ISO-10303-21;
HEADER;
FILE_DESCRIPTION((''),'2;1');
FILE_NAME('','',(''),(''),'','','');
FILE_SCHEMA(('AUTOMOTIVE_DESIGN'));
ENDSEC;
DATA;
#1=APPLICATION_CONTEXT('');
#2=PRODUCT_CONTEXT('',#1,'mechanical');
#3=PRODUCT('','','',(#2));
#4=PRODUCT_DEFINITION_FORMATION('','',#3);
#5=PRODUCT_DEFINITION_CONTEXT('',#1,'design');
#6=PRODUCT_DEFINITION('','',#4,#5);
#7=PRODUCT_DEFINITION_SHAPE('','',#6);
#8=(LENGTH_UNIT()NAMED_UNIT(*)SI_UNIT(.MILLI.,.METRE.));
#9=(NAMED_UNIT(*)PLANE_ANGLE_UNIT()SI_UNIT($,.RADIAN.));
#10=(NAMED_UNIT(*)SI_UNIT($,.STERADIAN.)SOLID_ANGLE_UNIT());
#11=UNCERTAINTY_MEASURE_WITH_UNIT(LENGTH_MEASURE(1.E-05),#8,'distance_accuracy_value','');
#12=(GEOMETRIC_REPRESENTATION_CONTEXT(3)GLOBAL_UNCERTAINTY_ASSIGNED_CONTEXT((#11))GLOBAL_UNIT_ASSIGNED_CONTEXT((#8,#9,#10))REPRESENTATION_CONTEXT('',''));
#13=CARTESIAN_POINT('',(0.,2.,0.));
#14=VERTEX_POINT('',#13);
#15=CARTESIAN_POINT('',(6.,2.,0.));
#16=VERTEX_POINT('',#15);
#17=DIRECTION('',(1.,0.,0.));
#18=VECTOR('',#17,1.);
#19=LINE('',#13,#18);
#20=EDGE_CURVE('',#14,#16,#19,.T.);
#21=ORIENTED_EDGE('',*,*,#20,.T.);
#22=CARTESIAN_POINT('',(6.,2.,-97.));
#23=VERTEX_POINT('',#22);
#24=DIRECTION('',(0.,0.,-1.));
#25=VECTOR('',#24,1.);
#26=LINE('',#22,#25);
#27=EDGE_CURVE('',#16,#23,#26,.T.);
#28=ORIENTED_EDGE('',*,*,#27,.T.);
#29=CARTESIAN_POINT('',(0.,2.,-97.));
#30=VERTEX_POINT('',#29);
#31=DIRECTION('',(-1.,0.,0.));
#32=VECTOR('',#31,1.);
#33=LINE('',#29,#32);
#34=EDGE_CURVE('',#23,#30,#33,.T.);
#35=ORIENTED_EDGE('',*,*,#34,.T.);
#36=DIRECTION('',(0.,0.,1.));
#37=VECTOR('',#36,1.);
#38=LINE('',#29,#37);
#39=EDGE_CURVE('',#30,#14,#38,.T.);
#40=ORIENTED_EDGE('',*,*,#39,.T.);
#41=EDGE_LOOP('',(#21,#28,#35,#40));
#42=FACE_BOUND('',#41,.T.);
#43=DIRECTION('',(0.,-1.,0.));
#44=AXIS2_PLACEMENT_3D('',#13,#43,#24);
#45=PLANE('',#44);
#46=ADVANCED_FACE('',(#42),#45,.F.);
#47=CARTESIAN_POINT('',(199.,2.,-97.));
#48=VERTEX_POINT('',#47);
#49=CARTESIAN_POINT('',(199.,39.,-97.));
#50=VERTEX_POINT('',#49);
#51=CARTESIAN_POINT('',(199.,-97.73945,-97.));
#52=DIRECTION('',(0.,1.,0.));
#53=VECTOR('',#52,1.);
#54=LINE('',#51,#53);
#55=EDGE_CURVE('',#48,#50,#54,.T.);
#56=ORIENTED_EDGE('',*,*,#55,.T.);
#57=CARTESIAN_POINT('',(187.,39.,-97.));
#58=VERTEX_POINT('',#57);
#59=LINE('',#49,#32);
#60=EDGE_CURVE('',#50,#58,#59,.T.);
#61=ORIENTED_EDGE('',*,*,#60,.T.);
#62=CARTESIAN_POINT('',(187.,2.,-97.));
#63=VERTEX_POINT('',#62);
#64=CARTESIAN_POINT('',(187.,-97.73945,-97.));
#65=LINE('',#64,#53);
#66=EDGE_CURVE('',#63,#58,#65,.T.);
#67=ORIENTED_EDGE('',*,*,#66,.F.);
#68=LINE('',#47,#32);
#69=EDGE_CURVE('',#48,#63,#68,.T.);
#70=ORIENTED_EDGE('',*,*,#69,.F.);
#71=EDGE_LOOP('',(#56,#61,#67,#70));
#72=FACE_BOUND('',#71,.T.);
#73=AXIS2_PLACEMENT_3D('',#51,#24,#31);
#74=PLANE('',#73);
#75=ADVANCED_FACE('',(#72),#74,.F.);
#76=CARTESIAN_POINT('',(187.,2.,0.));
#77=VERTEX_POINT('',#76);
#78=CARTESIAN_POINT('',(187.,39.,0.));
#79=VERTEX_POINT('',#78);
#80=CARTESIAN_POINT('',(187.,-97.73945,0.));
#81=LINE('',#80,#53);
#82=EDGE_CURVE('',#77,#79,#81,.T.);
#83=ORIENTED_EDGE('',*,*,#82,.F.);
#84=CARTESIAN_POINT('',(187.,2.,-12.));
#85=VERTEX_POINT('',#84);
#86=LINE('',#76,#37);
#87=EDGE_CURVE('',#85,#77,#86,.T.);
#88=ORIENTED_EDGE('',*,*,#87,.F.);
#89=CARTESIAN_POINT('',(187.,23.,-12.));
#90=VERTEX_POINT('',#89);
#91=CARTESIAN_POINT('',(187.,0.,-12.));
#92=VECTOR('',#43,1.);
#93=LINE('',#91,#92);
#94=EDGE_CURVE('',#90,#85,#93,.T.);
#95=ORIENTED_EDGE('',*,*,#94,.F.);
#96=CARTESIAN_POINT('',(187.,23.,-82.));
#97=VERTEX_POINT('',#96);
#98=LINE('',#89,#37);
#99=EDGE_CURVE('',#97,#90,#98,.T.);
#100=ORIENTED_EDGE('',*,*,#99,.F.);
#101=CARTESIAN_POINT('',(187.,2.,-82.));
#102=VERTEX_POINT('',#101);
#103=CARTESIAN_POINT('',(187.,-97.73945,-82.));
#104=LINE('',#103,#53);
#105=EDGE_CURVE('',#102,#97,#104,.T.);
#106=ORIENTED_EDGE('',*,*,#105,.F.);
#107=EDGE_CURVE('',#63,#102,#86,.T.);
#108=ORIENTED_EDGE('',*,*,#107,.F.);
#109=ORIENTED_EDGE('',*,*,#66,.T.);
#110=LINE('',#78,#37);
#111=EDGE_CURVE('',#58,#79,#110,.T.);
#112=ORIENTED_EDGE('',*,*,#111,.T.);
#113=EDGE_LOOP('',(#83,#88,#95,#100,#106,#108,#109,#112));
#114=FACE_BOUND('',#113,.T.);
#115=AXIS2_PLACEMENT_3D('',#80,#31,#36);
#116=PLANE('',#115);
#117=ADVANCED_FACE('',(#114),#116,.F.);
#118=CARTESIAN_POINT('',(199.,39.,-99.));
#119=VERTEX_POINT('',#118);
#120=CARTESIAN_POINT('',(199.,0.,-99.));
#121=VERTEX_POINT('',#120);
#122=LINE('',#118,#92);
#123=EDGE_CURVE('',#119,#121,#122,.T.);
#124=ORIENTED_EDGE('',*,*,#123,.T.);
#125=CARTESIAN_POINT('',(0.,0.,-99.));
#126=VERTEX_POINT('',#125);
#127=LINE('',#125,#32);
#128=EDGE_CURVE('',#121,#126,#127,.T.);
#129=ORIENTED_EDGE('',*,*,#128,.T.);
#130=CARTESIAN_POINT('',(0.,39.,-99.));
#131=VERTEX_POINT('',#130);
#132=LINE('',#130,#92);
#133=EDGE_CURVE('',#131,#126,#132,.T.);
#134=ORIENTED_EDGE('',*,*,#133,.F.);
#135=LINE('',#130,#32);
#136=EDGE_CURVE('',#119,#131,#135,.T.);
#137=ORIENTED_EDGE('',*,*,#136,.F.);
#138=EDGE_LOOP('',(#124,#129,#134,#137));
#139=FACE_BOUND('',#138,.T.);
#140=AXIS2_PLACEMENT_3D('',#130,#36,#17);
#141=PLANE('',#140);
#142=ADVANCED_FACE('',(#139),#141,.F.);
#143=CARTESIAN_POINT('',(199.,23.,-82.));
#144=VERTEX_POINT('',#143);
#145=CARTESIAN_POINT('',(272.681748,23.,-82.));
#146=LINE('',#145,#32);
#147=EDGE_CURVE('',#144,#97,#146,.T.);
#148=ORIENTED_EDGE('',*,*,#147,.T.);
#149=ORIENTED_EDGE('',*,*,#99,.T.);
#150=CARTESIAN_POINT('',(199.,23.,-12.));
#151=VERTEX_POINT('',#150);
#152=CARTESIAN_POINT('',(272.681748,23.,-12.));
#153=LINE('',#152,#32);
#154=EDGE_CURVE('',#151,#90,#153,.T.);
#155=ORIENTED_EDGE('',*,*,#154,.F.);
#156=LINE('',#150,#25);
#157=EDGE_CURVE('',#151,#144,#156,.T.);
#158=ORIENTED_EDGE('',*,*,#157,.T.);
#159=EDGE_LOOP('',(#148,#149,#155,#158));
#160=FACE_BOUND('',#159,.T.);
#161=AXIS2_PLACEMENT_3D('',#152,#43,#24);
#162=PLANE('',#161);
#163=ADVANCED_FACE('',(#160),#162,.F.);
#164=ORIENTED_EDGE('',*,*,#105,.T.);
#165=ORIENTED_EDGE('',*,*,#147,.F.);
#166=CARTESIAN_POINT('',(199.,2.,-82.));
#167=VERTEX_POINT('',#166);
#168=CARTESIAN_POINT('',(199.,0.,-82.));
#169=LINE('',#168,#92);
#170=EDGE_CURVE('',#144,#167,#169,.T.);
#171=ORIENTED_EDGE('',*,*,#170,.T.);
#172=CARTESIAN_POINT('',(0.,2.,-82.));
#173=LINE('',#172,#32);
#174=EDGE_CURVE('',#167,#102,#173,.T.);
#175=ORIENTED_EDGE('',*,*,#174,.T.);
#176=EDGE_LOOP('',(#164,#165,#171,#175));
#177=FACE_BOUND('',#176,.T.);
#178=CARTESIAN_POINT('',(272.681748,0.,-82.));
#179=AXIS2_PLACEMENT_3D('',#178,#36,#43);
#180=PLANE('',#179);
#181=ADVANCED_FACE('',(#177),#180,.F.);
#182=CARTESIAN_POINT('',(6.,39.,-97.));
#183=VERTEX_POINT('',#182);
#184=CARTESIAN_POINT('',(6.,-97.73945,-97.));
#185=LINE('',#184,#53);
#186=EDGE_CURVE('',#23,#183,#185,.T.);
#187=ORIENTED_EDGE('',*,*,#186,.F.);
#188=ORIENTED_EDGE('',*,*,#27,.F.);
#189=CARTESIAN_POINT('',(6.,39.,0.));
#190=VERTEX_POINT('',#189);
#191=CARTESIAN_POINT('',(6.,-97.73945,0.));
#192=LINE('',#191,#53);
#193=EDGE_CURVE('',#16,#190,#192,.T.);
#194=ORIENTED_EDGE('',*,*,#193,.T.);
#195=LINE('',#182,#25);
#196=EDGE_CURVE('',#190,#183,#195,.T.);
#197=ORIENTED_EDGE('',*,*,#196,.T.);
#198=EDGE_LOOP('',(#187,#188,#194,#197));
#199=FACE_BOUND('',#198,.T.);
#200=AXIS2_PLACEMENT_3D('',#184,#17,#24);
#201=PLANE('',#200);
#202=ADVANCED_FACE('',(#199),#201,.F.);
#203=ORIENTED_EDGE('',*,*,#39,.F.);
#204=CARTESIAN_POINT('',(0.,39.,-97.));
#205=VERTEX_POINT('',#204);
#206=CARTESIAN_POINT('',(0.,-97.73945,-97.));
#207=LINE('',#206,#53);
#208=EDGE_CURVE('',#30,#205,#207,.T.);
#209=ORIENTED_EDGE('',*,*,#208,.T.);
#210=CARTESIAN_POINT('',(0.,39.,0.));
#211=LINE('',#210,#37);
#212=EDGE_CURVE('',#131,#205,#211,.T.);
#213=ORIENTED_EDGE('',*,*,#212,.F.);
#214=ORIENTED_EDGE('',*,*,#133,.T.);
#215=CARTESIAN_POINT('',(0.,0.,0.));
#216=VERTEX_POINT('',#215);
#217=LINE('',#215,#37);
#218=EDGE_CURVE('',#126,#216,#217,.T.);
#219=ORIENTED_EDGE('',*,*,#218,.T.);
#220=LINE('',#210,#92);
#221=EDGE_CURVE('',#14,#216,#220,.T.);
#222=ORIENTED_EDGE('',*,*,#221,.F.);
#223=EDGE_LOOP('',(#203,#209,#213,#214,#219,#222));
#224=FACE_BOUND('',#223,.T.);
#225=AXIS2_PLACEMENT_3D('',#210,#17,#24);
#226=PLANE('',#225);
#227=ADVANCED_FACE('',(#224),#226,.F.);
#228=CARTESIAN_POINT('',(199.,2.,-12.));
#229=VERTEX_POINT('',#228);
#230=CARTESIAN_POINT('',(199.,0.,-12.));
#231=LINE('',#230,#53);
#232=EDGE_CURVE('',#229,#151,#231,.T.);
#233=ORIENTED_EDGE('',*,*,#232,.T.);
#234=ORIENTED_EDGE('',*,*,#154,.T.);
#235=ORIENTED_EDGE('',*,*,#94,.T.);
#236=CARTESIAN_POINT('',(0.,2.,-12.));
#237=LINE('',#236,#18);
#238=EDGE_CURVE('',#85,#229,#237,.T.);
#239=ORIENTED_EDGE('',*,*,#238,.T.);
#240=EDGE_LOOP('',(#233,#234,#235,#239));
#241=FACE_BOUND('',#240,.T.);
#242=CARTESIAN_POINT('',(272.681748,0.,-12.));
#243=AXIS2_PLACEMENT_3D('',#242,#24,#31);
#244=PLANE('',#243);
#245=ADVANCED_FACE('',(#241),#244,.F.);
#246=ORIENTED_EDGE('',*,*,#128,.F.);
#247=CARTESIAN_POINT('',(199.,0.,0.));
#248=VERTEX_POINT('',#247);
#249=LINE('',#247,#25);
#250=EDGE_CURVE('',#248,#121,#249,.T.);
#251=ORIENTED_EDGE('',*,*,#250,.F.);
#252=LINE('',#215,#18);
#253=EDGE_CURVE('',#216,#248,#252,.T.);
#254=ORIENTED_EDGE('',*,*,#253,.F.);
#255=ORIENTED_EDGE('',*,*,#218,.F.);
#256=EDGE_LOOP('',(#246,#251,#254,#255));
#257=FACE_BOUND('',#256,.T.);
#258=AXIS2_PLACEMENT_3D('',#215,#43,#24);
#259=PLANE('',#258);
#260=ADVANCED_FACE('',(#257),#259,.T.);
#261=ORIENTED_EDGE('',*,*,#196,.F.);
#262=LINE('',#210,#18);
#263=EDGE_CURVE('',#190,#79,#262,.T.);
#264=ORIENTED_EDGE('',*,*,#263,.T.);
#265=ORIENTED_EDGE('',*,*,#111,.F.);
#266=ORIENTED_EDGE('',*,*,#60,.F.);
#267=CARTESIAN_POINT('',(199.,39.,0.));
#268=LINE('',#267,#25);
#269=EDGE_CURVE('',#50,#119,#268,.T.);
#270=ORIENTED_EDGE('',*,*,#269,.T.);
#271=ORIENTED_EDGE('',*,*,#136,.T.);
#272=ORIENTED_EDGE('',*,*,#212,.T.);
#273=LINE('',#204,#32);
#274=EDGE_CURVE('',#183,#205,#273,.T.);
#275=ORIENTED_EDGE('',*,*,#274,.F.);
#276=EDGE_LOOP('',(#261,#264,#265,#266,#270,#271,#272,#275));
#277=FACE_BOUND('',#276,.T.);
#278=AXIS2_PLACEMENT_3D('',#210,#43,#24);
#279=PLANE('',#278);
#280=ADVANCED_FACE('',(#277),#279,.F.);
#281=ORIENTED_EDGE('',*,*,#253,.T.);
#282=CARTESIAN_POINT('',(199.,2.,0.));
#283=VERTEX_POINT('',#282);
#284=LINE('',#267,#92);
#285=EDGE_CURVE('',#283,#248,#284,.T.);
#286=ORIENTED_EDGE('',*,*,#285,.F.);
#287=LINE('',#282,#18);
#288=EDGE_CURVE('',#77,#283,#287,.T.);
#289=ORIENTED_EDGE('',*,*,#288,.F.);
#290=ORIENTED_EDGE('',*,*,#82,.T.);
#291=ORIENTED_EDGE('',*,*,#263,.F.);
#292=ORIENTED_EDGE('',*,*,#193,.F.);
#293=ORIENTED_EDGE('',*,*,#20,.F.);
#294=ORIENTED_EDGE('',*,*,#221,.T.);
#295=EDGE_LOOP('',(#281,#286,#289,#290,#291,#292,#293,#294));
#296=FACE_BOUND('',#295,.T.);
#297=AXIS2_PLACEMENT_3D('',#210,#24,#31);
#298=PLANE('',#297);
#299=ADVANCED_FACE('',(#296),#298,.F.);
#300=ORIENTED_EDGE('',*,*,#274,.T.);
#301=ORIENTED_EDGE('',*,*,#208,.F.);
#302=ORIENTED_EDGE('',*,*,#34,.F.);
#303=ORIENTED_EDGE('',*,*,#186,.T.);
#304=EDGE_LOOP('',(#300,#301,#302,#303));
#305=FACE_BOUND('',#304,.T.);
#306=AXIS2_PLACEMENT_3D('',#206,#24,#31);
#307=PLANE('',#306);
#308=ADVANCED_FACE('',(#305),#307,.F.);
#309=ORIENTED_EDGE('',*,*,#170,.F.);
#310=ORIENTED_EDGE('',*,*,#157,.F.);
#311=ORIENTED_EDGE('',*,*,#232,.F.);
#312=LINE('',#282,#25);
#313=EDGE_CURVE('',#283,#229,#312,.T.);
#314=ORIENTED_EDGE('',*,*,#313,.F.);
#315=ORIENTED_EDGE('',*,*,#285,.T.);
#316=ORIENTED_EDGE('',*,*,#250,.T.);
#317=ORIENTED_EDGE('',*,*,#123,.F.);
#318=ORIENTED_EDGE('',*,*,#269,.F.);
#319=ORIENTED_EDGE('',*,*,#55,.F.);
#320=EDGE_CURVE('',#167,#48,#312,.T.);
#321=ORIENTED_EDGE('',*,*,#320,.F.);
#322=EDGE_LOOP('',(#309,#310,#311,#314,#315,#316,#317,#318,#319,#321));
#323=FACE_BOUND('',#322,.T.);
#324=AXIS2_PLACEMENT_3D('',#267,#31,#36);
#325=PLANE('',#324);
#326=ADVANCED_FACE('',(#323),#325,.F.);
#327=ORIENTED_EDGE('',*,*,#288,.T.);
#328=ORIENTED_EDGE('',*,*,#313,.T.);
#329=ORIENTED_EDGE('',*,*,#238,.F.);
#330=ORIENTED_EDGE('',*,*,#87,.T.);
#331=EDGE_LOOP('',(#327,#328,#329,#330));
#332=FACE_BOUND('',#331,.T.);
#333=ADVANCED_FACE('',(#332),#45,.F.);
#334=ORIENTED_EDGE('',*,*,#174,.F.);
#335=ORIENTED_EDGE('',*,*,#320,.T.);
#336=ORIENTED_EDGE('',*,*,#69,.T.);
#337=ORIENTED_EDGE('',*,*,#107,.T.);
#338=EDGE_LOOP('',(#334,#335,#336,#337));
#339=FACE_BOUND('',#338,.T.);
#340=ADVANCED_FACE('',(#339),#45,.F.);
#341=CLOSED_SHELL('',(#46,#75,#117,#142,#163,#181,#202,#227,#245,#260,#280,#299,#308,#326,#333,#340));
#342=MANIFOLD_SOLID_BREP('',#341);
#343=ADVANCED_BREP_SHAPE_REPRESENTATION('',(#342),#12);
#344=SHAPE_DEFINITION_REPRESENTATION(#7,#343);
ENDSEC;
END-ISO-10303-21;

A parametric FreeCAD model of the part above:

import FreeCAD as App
import Part
import Sketcher
from FreeCAD import Vector


def add_polygon(sketch, points):
    """Adds a closed chain of lines whose ends are joined by coincident constraints."""
    first, n = sketch.GeometryCount, len(points)
    for a, b in zip(points, points[1:] + points[:1]):
        sketch.addGeometry(Part.LineSegment(App.Vector(*a, 0), App.Vector(*b, 0)), False)
    for i in range(n):
        sketch.addConstraint(Sketcher.Constraint("Coincident", first + i, 2, first + (i + 1) % n, 1))

doc = App.newDocument("Part")
body = doc.addObject("PartDesign::Body", "Body")

# Sketch on XZ plane
sketch1 = body.newObject("Sketcher::SketchObject", "Sketch")
sketch1.AttachmentSupport = (doc.getObject("XZ_Plane"), [""])
sketch1.MapMode = "FlatFace"
add_polygon(sketch1, [(0, -99), (0, 0), (199, 0), (199, -99)])  # lines 0-3
sketch1.addConstraint(Sketcher.Constraint("Vertical", 0))
sketch1.addConstraint(Sketcher.Constraint("Horizontal", 1))
sketch1.addConstraint(Sketcher.Constraint("Vertical", 2))
sketch1.addConstraint(Sketcher.Constraint("Horizontal", 3))
sketch1.addConstraint(Sketcher.Constraint("Coincident", 0, 2, -1, 1))
sketch1.addConstraint(Sketcher.Constraint("DistanceX", 1, 1, 1, 2, 199.0))
sketch1.addConstraint(Sketcher.Constraint("DistanceY", 0, 1, 0, 2, 99.0))
pad1 = body.newObject("PartDesign::Pad", "Pad")
pad1.Profile = sketch1
pad1.Length = 39
pad1.Reversed = True

# Sketch on XZ plane
sketch2 = body.newObject("Sketcher::SketchObject", "Sketch001")
sketch2.AttachmentSupport = (doc.getObject("XZ_Plane"), [""])
sketch2.MapMode = "FlatFace"
sketch2.AttachmentOffset = App.Placement(Vector(0, 0, -39), App.Rotation())
add_polygon(sketch2, [(0, -97), (0, 0), (6, 0), (6, -97)])  # lines 0-3
add_polygon(sketch2, [(187, -97), (187, 0), (199, 0), (199, -97)])  # lines 4-7
sketch2.addConstraint(Sketcher.Constraint("Vertical", 0))
sketch2.addConstraint(Sketcher.Constraint("Horizontal", 1))
sketch2.addConstraint(Sketcher.Constraint("Vertical", 2))
sketch2.addConstraint(Sketcher.Constraint("Horizontal", 3))
sketch2.addConstraint(Sketcher.Constraint("Vertical", 4))
sketch2.addConstraint(Sketcher.Constraint("Horizontal", 5))
sketch2.addConstraint(Sketcher.Constraint("Vertical", 6))
sketch2.addConstraint(Sketcher.Constraint("Horizontal", 7))
sketch2.addConstraint(Sketcher.Constraint("Coincident", 0, 2, -1, 1))
sketch2.addConstraint(Sketcher.Constraint("PointOnObject", 4, 2, -1))
sketch2.addConstraint(Sketcher.Constraint("Horizontal", 3, 2, 6, 2))
sketch2.addConstraint(Sketcher.Constraint("DistanceX", 1, 1, 1, 2, 6.0))
sketch2.addConstraint(Sketcher.Constraint("DistanceX", 5, 1, 5, 2, 12.0))
sketch2.addConstraint(Sketcher.Constraint("DistanceY", 0, 1, 0, 2, 97.0))
sketch2.addConstraint(Sketcher.Constraint("DistanceX", -1, 1, 4, 2, 187.0))
pocket1 = body.newObject("PartDesign::Pocket", "Pocket")
pocket1.Profile = sketch2
pocket1.Length = 37
pocket1.Reversed = True

# Sketch on YZ plane
sketch3 = body.newObject("Sketcher::SketchObject", "Sketch002")
sketch3.AttachmentSupport = (doc.getObject("YZ_Plane"), [""])
sketch3.MapMode = "FlatFace"
sketch3.AttachmentOffset = App.Placement(Vector(0, 0, 187), App.Rotation())
add_polygon(sketch3, [(23, -12), (0, -12), (0, -82), (23, -82)])  # lines 0-3
sketch3.addConstraint(Sketcher.Constraint("Horizontal", 0))
sketch3.addConstraint(Sketcher.Constraint("Vertical", 1))
sketch3.addConstraint(Sketcher.Constraint("Horizontal", 2))
sketch3.addConstraint(Sketcher.Constraint("Vertical", 3))
sketch3.addConstraint(Sketcher.Constraint("PointOnObject", 0, 2, -2))
sketch3.addConstraint(Sketcher.Constraint("DistanceX", 0, 2, 0, 1, 23.0))
sketch3.addConstraint(Sketcher.Constraint("DistanceY", 1, 2, 1, 1, 70.0))
sketch3.addConstraint(Sketcher.Constraint("DistanceY", 0, 2, -1, 1, 12.0))
pad2 = body.newObject("PartDesign::Pad", "Pad001")
pad2.Profile = sketch3
pad2.Length = 12

doc.recompute()
